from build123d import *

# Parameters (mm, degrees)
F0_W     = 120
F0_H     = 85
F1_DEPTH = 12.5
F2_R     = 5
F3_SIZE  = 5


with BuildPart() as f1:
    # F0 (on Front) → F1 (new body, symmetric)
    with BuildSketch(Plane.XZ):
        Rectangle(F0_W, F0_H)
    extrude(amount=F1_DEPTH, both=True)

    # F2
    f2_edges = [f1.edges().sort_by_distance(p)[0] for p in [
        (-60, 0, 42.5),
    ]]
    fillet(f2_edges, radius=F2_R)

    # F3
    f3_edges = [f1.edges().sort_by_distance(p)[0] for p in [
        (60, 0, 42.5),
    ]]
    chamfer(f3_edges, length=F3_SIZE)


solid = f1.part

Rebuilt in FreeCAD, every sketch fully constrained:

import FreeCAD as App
import Part
import Sketcher
from FreeCAD import Vector


def edges_at(feature, points):
    """Names of the edges that pass closest to the given points."""
    edges = feature.Shape.Edges
    near = lambda p: min(range(len(edges)), key=lambda i: edges[i].distToShape(Part.Vertex(*p))[0])
    return sorted({f"Edge{near(p) + 1}" for p in points})

doc = App.newDocument("Part")
body = doc.addObject("PartDesign::Body", "Body")

# Sketch on XZ plane
sketch1 = body.newObject("Sketcher::SketchObject", "Sketch")
sketch1.AttachmentSupport = (doc.getObject("XZ_Plane"), [""])
sketch1.MapMode = "FlatFace"
sketch1.addGeometry([
    Part.LineSegment(Vector(-60, 42, 0), Vector(-60, -42, 0)),
    Part.LineSegment(Vector(-60, -42, 0), Vector(60, -42, 0)),
    Part.LineSegment(Vector(60, -42, 0), Vector(60, 42, 0)),
    Part.LineSegment(Vector(60, 42, 0), Vector(-60, 42, 0)),
], False)
sketch1.addConstraint([
    Sketcher.Constraint("Coincident", 0, 2, 1, 1),
    Sketcher.Constraint("Coincident", 1, 2, 2, 1),
    Sketcher.Constraint("Coincident", 2, 2, 3, 1),
    Sketcher.Constraint("Coincident", 3, 2, 0, 1),
    Sketcher.Constraint("Vertical", 0),
    Sketcher.Constraint("Horizontal", 1),
    Sketcher.Constraint("Vertical", 2),
    Sketcher.Constraint("Horizontal", 3),
    Sketcher.Constraint("Symmetric", 0, 2, 2, 2, -1, 1),
    Sketcher.Constraint("DistanceX", 1, 1, 1, 2, 120.0),
    Sketcher.Constraint("DistanceY", 0, 2, 0, 1, 85.0),
])
pad1 = body.newObject("PartDesign::Pad", "Pad")
pad1.Profile = sketch1
pad1.Length = 25
pad1.Midplane = True
doc.recompute()

fillet = body.newObject("PartDesign::Fillet", "Fillet")
fillet.Base = (pad1, edges_at(pad1, [(-60, 0, 42.5)]))
fillet.Radius = 5
doc.recompute()

chamfer = body.newObject("PartDesign::Chamfer", "Chamfer")
chamfer.Base = (fillet, edges_at(fillet, [(60, 0, 42.5)]))
chamfer.Size = 5

doc.recompute()
